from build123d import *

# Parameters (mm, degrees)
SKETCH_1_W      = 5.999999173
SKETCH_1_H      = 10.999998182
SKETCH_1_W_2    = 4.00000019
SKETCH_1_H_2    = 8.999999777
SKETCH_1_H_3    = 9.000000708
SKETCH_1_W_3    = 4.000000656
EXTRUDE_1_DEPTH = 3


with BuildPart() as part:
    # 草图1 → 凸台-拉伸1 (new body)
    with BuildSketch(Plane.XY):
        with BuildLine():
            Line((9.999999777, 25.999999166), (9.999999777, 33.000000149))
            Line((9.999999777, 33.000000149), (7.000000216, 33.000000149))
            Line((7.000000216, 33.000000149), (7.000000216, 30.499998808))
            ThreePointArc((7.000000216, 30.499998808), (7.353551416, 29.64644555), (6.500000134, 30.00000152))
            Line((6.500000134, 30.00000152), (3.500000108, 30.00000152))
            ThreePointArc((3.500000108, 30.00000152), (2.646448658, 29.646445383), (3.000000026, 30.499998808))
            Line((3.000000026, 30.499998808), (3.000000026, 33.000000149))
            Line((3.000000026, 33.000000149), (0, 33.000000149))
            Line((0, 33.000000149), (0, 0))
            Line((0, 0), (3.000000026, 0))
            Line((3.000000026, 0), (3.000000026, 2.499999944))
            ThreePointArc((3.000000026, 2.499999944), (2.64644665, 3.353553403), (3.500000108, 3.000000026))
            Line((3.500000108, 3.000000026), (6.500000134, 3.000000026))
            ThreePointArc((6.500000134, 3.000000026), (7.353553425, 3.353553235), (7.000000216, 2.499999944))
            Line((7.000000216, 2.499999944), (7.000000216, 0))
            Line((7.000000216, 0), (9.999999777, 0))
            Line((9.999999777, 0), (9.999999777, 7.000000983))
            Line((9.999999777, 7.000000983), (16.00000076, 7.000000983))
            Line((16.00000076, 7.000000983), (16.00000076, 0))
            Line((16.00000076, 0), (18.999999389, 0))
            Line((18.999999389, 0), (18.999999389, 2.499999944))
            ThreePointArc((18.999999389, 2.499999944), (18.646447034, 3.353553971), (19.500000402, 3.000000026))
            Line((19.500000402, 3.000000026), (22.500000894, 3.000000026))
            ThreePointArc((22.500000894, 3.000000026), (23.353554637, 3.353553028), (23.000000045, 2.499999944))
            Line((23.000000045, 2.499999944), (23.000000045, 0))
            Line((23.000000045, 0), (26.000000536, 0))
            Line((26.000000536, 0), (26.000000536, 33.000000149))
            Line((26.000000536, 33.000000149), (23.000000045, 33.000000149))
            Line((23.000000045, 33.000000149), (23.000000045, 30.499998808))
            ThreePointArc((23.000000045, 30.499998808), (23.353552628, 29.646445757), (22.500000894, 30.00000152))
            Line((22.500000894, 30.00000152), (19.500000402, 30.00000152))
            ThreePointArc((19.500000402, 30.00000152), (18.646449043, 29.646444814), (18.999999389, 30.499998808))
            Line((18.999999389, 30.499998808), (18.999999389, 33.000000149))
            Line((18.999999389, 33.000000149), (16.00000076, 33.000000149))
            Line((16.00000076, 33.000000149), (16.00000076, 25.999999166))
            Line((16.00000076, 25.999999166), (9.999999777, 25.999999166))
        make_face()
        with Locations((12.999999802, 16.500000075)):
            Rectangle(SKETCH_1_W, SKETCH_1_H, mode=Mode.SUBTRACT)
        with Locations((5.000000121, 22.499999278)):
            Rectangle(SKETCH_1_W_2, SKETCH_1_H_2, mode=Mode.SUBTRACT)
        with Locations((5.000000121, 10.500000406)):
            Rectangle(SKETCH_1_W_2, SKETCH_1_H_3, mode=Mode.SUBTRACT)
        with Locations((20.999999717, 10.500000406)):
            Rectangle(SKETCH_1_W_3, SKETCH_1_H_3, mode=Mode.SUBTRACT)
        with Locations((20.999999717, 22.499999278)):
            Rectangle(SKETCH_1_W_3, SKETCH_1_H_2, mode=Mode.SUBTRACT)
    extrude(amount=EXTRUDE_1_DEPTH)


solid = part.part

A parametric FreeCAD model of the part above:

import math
import FreeCAD as App
import Part
import Sketcher

V = App.Vector
Q = App.Units.Quantity


def add_polygon(sketch, points):
    """Adds a closed chain of lines whose ends are joined by coincident constraints."""
    first, n = sketch.GeometryCount, len(points)
    for a, b in zip(points, points[1:] + points[:1]):
        sketch.addGeometry(Part.LineSegment(App.Vector(*a, 0), App.Vector(*b, 0)), False)
    for i in range(n):
        sketch.addConstraint(Sketcher.Constraint("Coincident", first + i, 2, first + (i + 1) % n, 1))

doc = App.newDocument("Part")
params = doc.addObject("Spreadsheet::Sheet", "Params")
for row, (alias, value) in enumerate([
    ("sketch1_radius", "0.499999 mm"),
    ("sketch1_width", "3 mm"),
    ("sketch1_width2", "6.000001 mm"),
    ("sketch1_height", "7.000001 mm"),
    ("sketch1_height2", "33 mm"),
    ("pad1_length", "3 mm"),
], start=1):
    params.set(f"A{row}", alias)
    params.set(f"B{row}", "=" + value)
    params.setAlias(f"B{row}", alias)

body = doc.addObject("PartDesign::Body", "Body")

sketch1 = body.newObject("Sketcher::SketchObject", "Sketch")
sketch1.AttachmentSupport = (doc.getObject("XY_Plane"), [""])
sketch1.MapMode = "FlatFace"
sketch1.addGeometry(Part.LineSegment(V(10, 26, 0), V(10, 33, 0)), False)
sketch1.addGeometry(Part.LineSegment(V(10, 33, 0), V(7, 33, 0)), False)
sketch1.addGeometry(Part.LineSegment(V(7, 33, 0), V(7, 30.5, 0)), False)
sketch1.addGeometry(Part.ArcOfCircle(Part.Circle(V(7, 30, 0), V(0, 0, 1), 0.5), math.radians(180), math.radians(450)), False)
sketch1.addGeometry(Part.LineSegment(V(6.5, 30, 0), V(3.5, 30, 0)), False)
sketch1.addGeometry(Part.ArcOfCircle(Part.Circle(V(3, 30, 0), V(0, 0, 1), 0.5), math.radians(90), math.radians(360)), False)
sketch1.addGeometry(Part.LineSegment(V(3, 30.5, 0), V(3, 33, 0)), False)
sketch1.addGeometry(Part.LineSegment(V(3, 33, 0), V(0, 33, 0)), False)
sketch1.addGeometry(Part.LineSegment(V(0, 33, 0), V(0, 0, 0)), False)
sketch1.addGeometry(Part.LineSegment(V(0, 0, 0), V(3, 0, 0)), False)
sketch1.addGeometry(Part.LineSegment(V(3, 0, 0), V(3, 2.5, 0)), False)
sketch1.addGeometry(Part.ArcOfCircle(Part.Circle(V(3, 3, 0), V(0, 0, 1), 0.5), math.radians(0), math.radians(270)), False)
sketch1.addGeometry(Part.LineSegment(V(3.5, 3, 0), V(6.5, 3, 0)), False)
sketch1.addGeometry(Part.ArcOfCircle(Part.Circle(V(7, 3, 0), V(0, 0, 1), 0.5), math.radians(-90), math.radians(180)), False)
sketch1.addGeometry(Part.LineSegment(V(7, 2.5, 0), V(7, 0, 0)), False)
sketch1.addGeometry(Part.LineSegment(V(7, 0, 0), V(10, 0, 0)), False)
sketch1.addGeometry(Part.LineSegment(V(10, 0, 0), V(10, 7, 0)), False)
sketch1.addGeometry(Part.LineSegment(V(10, 7, 0), V(16, 7, 0)), False)
sketch1.addGeometry(Part.LineSegment(V(16, 7, 0), V(16, 0, 0)), False)
sketch1.addGeometry(Part.LineSegment(V(16, 0, 0), V(19, 0, 0)), False)
sketch1.addGeometry(Part.LineSegment(V(19, 0, 0), V(19, 2.5, 0)), False)
sketch1.addGeometry(Part.ArcOfCircle(Part.Circle(V(19, 3, 0), V(0, 0, 1), 0.5), math.radians(0), math.radians(270)), False)
sketch1.addGeometry(Part.LineSegment(V(19.5, 3, 0), V(22.5, 3, 0)), False)
sketch1.addGeometry(Part.ArcOfCircle(Part.Circle(V(23, 3, 0), V(0, 0, 1), 0.5), math.radians(-90), math.radians(180)), False)
sketch1.addGeometry(Part.LineSegment(V(23, 2.5, 0), V(23, 0, 0)), False)
sketch1.addGeometry(Part.LineSegment(V(23, 0, 0), V(26, 0, 0)), False)
sketch1.addGeometry(Part.LineSegment(V(26, 0, 0), V(26, 33, 0)), False)
sketch1.addGeometry(Part.LineSegment(V(26, 33, 0), V(23, 33, 0)), False)
sketch1.addGeometry(Part.LineSegment(V(23, 33, 0), V(23, 30.5, 0)), False)
sketch1.addGeometry(Part.ArcOfCircle(Part.Circle(V(23, 30, 0), V(0, 0, 1), 0.5), math.radians(180), math.radians(450)), False)
sketch1.addGeometry(Part.LineSegment(V(22.5, 30, 0), V(19.5, 30, 0)), False)
sketch1.addGeometry(Part.ArcOfCircle(Part.Circle(V(19, 30, 0), V(0, 0, 1), 0.5), math.radians(90), math.radians(360)), False)
sketch1.addGeometry(Part.LineSegment(V(19, 30.5, 0), V(19, 33, 0)), False)
sketch1.addGeometry(Part.LineSegment(V(19, 33, 0), V(16, 33, 0)), False)
sketch1.addGeometry(Part.LineSegment(V(16, 33, 0), V(16, 26, 0)), False)
sketch1.addGeometry(Part.LineSegment(V(16, 26, 0), V(10, 26, 0)), False)
add_polygon(sketch1, [(7, 6), (3, 6), (3, 15), (7, 15)])
add_polygon(sketch1, [(23, 6), (19, 6), (19, 15), (23, 15)])
add_polygon(sketch1, [(16, 11), (10, 11), (10, 22), (16, 22)])
add_polygon(sketch1, [(7, 18), (3, 18), (3, 27), (7, 27)])
add_polygon(sketch1, [(23, 18), (19, 18), (19, 27), (23, 27)])
sketch1.addConstraint([
    Sketcher.Constraint("Coincident", 0, 2, 1, 1),
    Sketcher.Constraint("Coincident", 1, 2, 2, 1),
    Sketcher.Constraint("Coincident", 2, 2, 3, 2),
    Sketcher.Constraint("Coincident", 3, 1, 4, 1),
    Sketcher.Constraint("Coincident", 4, 2, 5, 2),
    Sketcher.Constraint("Coincident", 5, 1, 6, 1),
    Sketcher.Constraint("Coincident", 6, 2, 7, 1),
    Sketcher.Constraint("Coincident", 7, 2, 8, 1),
    Sketcher.Constraint("Coincident", 8, 2, 9, 1),
    Sketcher.Constraint("Coincident", 9, 2, 10, 1),
    Sketcher.Constraint("Coincident", 10, 2, 11, 2),
    Sketcher.Constraint("Coincident", 11, 1, 12, 1),
    Sketcher.Constraint("Coincident", 12, 2, 13, 2),
    Sketcher.Constraint("Coincident", 13, 1, 14, 1),
    Sketcher.Constraint("Coincident", 14, 2, 15, 1),
    Sketcher.Constraint("Coincident", 15, 2, 16, 1),
    Sketcher.Constraint("Coincident", 16, 2, 17, 1),
    Sketcher.Constraint("Coincident", 17, 2, 18, 1),
    Sketcher.Constraint("Coincident", 18, 2, 19, 1),
    Sketcher.Constraint("Coincident", 19, 2, 20, 1),
    Sketcher.Constraint("Coincident", 20, 2, 21, 2),
    Sketcher.Constraint("Coincident", 21, 1, 22, 1),
    Sketcher.Constraint("Coincident", 22, 2, 23, 2),
    Sketcher.Constraint("Coincident", 23, 1, 24, 1),
    Sketcher.Constraint("Coincident", 24, 2, 25, 1),
    Sketcher.Constraint("Coincident", 25, 2, 26, 1),
    Sketcher.Constraint("Coincident", 26, 2, 27, 1),
    Sketcher.Constraint("Coincident", 27, 2, 28, 1),
    Sketcher.Constraint("Coincident", 28, 2, 29, 2),
    Sketcher.Constraint("Coincident", 29, 1, 30, 1),
    Sketcher.Constraint("Coincident", 30, 2, 31, 2),
    Sketcher.Constraint("Coincident", 31, 1, 32, 1),
    Sketcher.Constraint("Coincident", 32, 2, 33, 1),
    Sketcher.Constraint("Coincident", 33, 2, 34, 1),
    Sketcher.Constraint("Coincident", 34, 2, 35, 1),
    Sketcher.Constraint("Coincident", 35, 2, 0, 1),
    Sketcher.Constraint("Vertical", 0),
    Sketcher.Constraint("Horizontal", 1),
    Sketcher.Constraint("Vertical", 2),
    Sketcher.Constraint("Horizontal", 4),
    Sketcher.Constraint("Vertical", 6),
    Sketcher.Constraint("Horizontal", 7),
    Sketcher.Constraint("Vertical", 8),
    Sketcher.Constraint("Horizontal", 9),
    Sketcher.Constraint("Vertical", 10),
    Sketcher.Constraint("Horizontal", 12),
    Sketcher.Constraint("Vertical", 14),
    Sketcher.Constraint("Horizontal", 15),
    Sketcher.Constraint("Vertical", 16),
    Sketcher.Constraint("Horizontal", 17),
    Sketcher.Constraint("Vertical", 18),
    Sketcher.Constraint("Horizontal", 19),
    Sketcher.Constraint("Vertical", 20),
    Sketcher.Constraint("Horizontal", 22),
    Sketcher.Constraint("Vertical", 24),
    Sketcher.Constraint("Horizontal", 25),
    Sketcher.Constraint("Vertical", 26),
    Sketcher.Constraint("Horizontal", 27),
    Sketcher.Constraint("Vertical", 28),
    Sketcher.Constraint("Horizontal", 30),
    Sketcher.Constraint("Vertical", 32),
    Sketcher.Constraint("Horizontal", 33),
    Sketcher.Constraint("Vertical", 34),
    Sketcher.Constraint("Horizontal", 35),
    Sketcher.Constraint("Horizontal", 36),
    Sketcher.Constraint("Vertical", 37),
    Sketcher.Constraint("Horizontal", 38),
    Sketcher.Constraint("Vertical", 39),
    Sketcher.Constraint("Horizontal", 40),
    Sketcher.Constraint("Vertical", 41),
    Sketcher.Constraint("Horizontal", 42),
    Sketcher.Constraint("Vertical", 43),
    Sketcher.Constraint("Horizontal", 44),
    Sketcher.Constraint("Vertical", 45),
    Sketcher.Constraint("Horizontal", 46),
    Sketcher.Constraint("Vertical", 47),
    Sketcher.Constraint("Horizontal", 48),
    Sketcher.Constraint("Vertical", 49),
    Sketcher.Constraint("Horizontal", 50),
    Sketcher.Constraint("Vertical", 51),
    Sketcher.Constraint("Horizontal", 52),
    Sketcher.Constraint("Vertical", 53),
    Sketcher.Constraint("Horizontal", 54),
    Sketcher.Constraint("Vertical", 55),
    Sketcher.Constraint("Coincident", 8, 2, -1, 1),
    Sketcher.Constraint("Equal", 3, 5),
    Sketcher.Constraint("Equal", 5, 11),
    Sketcher.Constraint("Equal", 11, 13),
    Sketcher.Constraint("Equal", 13, 21),
    Sketcher.Constraint("Equal", 21, 23),
    Sketcher.Constraint("Equal", 23, 29),
    Sketcher.Constraint("Equal", 29, 31),
    Sketcher.Constraint("PointOnObject", 14, 2, -1),
    Sketcher.Constraint("PointOnObject", 18, 2, -1),
    Sketcher.Constraint("PointOnObject", 24, 2, -1),
    Sketcher.Constraint("Horizontal", 3, 3, 5, 3),
    Sketcher.Constraint("Horizontal", 11, 3, 13, 3),
    Sketcher.Constraint("Horizontal", 13, 3, 21, 3),
    Sketcher.Constraint("Horizontal", 21, 3, 23, 3),
    Sketcher.Constraint("Horizontal", 5, 3, 29, 3),
    Sketcher.Constraint("Horizontal", 29, 3, 31, 3),
    Sketcher.Constraint("Horizontal", 1, 2, 6, 2),
    Sketcher.Constraint("Horizontal", 23, 3, 11, 1),
    Sketcher.Constraint("Horizontal", 12, 2, 21, 1),
    Sketcher.Constraint("Horizontal", 7, 2, 26, 2),
    Sketcher.Constraint("Horizontal", 4, 2, 29, 1),
    Sketcher.Constraint("Horizontal", 27, 2, 32, 2),
    Sketcher.Constraint("Horizontal", 39, 2, 40, 2),
    Sketcher.Constraint("Horizontal", 38, 2, 41, 2),
    Sketcher.Constraint("Horizontal", 51, 2, 52, 2),
    Sketcher.Constraint("Horizontal", 50, 2, 53, 2),
    Sketcher.Constraint("Vertical", 5, 3, 11, 3),
    Sketcher.Constraint("Vertical", 3, 3, 13, 3),
    Sketcher.Constraint("Vertical", 23, 3, 29, 3),
    Sketcher.Constraint("Vertical", 21, 3, 31, 3),
    Sketcher.Constraint("Vertical", 13, 3, 1, 2),
    Sketcher.Constraint("Vertical", 11, 3, 5, 1),
    Sketcher.Constraint("Vertical", 6, 2, 9, 2),
    Sketcher.Constraint("Vertical", 2, 2, 13, 1),
    Sketcher.Constraint("Vertical", 0, 2, 15, 2),
    Sketcher.Constraint("Vertical", 31, 3, 19, 2),
    Sketcher.Constraint("Vertical", 29, 3, 23, 1),
    Sketcher.Constraint("Vertical", 24, 2, 27, 2),
    Sketcher.Constraint("Vertical", 20, 2, 31, 1),
    Sketcher.Constraint("Vertical", 18, 2, 33, 2),
    Sketcher.Constraint("Vertical", 10, 2, 36, 2),
    Sketcher.Constraint("Vertical", 14, 2, 38, 2),
    Sketcher.Constraint("Vertical", 32, 2, 40, 2),
    Sketcher.Constraint("Vertical", 28, 2, 42, 2),
    Sketcher.Constraint("Vertical", 35, 2, 44, 2),
    Sketcher.Constraint("Vertical", 34, 2, 46, 2),
    Sketcher.Constraint("Vertical", 37, 2, 48, 2),
    Sketcher.Constraint("Vertical", 39, 2, 50, 2),
    Sketcher.Constraint("Vertical", 41, 2, 52, 2),
    Sketcher.Constraint("Vertical", 43, 2, 54, 2),
    Sketcher.Constraint("Equal", 1, 4),
    Sketcher.Constraint("Equal", 4, 7),
    Sketcher.Constraint("Equal", 15, 19),
    Sketcher.Constraint("Equal", 19, 22),
    Sketcher.Constraint("Equal", 22, 25),
    Sketcher.Constraint("Equal", 6, 10),
    Sketcher.Constraint("Equal", 0, 16),
    Sketcher.Constraint("Equal", 43, 49),
    Sketcher.Constraint("Radius", 3, Q("0.499999 mm")),
    Sketcher.Constraint("DistanceX", 1, 2, 1, 1, Q("3 mm")),
    Sketcher.Constraint("DistanceX", 17, 1, 17, 2, Q("6.000001 mm")),
    Sketcher.Constraint("DistanceY", 0, 1, 0, 2, Q("7.000001 mm")),
    Sketcher.Constraint("DistanceY", 8, 2, 8, 1, Q("33 mm")),
    Sketcher.Constraint("DistanceY", 37, 1, 37, 2, Q("9.000001 mm")),
    Sketcher.Constraint("DistanceY", 45, 1, 45, 2, Q("10.999998 mm")),
    Sketcher.Constraint("DistanceY", 2, 2, 2, 1, Q("2.500001 mm")),
    Sketcher.Constraint("DistanceY", -1, 1, 3, 1, Q("30.000002 mm")),
    Sketcher.Constraint("DistanceY", -1, 1, 36, 2, Q("6 mm")),
    Sketcher.Constraint("DistanceY", -1, 1, 44, 2, Q("11.000001 mm")),
    Sketcher.Constraint("DistanceY", -1, 1, 48, 2, Q("17.999999 mm")),
])
sketch1.setExpression("Constraints[163]", "Params.sketch1_radius")
sketch1.setExpression("Constraints[164]", "Params.sketch1_width")
sketch1.setExpression("Constraints[165]", "Params.sketch1_width2")
sketch1.setExpression("Constraints[166]", "Params.sketch1_height")
sketch1.setExpression("Constraints[167]", "Params.sketch1_height2")
pad1 = body.newObject("PartDesign::Pad", "Pad")
pad1.Profile = sketch1
pad1.setExpression("Length", "Params.pad1_length")

doc.recompute()
